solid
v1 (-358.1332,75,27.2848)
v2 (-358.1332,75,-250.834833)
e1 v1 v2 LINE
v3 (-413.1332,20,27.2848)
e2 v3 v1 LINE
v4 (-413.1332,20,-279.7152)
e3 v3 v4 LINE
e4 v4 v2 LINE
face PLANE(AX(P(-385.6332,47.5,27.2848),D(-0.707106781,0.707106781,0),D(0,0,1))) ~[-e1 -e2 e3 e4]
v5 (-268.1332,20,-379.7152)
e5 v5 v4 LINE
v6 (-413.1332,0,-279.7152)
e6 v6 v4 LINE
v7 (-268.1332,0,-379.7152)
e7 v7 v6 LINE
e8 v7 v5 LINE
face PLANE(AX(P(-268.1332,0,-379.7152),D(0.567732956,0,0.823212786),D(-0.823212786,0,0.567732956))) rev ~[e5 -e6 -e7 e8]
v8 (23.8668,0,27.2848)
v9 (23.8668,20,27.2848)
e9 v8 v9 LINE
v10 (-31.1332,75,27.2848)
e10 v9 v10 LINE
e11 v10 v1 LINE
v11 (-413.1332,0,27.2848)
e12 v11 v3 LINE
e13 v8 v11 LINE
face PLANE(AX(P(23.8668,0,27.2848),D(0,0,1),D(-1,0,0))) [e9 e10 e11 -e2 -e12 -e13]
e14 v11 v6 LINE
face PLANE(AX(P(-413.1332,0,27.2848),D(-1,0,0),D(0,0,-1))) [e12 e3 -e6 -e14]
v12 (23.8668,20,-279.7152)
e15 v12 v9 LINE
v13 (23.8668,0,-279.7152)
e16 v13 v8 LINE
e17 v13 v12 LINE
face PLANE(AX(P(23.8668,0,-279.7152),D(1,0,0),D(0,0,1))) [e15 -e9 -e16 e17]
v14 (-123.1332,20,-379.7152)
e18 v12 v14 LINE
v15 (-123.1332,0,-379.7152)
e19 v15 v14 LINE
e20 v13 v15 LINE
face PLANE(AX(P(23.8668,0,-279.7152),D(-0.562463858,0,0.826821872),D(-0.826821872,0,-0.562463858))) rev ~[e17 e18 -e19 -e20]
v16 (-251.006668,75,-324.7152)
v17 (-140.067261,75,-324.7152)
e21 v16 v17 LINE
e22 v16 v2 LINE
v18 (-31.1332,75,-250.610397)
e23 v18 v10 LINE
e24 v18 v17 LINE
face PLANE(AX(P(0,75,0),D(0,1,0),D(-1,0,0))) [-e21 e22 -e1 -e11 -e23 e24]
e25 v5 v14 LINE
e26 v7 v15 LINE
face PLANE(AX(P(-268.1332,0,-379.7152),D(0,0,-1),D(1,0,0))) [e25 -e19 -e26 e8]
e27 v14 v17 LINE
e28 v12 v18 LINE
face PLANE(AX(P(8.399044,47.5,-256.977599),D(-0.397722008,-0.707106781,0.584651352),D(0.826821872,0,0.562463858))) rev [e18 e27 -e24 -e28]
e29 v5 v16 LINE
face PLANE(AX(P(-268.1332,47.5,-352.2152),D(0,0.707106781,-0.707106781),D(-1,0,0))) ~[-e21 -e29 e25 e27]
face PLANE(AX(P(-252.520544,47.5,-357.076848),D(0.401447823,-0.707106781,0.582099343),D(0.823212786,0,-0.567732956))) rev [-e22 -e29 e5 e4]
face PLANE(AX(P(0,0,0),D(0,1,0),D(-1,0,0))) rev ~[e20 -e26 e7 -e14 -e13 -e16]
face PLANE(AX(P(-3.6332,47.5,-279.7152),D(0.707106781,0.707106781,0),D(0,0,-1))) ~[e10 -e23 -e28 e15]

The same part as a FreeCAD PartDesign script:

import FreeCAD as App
import Part
import Sketcher

V = App.Vector
Q = App.Units.Quantity


def edges_at(feature, points):
    """Names of the edges that pass closest to the given points."""
    edges = feature.Shape.Edges
    near = lambda p: min(range(len(edges)), key=lambda i: edges[i].distToShape(Part.Vertex(*p))[0])
    return sorted({f"Edge{near(p) + 1}" for p in points})


def add_polygon(sketch, points):
    """Adds a closed chain of lines whose ends are joined by coincident constraints."""
    first, n = sketch.GeometryCount, len(points)
    for a, b in zip(points, points[1:] + points[:1]):
        sketch.addGeometry(Part.LineSegment(App.Vector(*a, 0), App.Vector(*b, 0)), False)
    for i in range(n):
        sketch.addConstraint(Sketcher.Constraint("Coincident", first + i, 2, first + (i + 1) % n, 1))

doc = App.newDocument("Part")
params = doc.addObject("Spreadsheet::Sheet", "Params")
for row, (alias, value) in enumerate([
    ("sketch1_width", "437 mm"),
    ("sketch1_width2", "145 mm"),
    ("pad1_length", "75 mm"),
    ("chamfer_size", "55 mm"),
], start=1):
    params.set(f"A{row}", alias)
    params.set(f"B{row}", "=" + value)
    params.setAlias(f"B{row}", alias)

body = doc.addObject("PartDesign::Body", "Body")

sketch1 = doc.addObject("Sketcher::SketchObject", "Sketch")
body.addObject(sketch1)
sketch1.AttachmentSupport = (doc.XZ_Plane, [""])
sketch1.MapMode = "FlatFace"
add_polygon(sketch1, [(-413, 27), (24, 27), (24, -280), (-123, -380), (-268, -380), (-413, -280)])
sketch1.addConstraint([
    Sketcher.Constraint("Horizontal", 0),
    Sketcher.Constraint("Vertical", 1),
    Sketcher.Constraint("Horizontal", 3),
    Sketcher.Constraint("Vertical", 5),
    Sketcher.Constraint("Horizontal", 1, 2, 4, 2),
    Sketcher.Constraint("DistanceX", 0, 1, 0, 2, Q("437 mm")),
    Sketcher.Constraint("DistanceX", 3, 2, 3, 1, Q("145 mm")),
    Sketcher.Constraint("DistanceY", 2, 2, 1, 2, Q("100 mm")),
    Sketcher.Constraint("DistanceY", 2, 2, 0, 2, Q("407 mm")),
    Sketcher.Constraint("DistanceX", 4, 2, 3, 2, Q("145 mm")),
    Sketcher.Constraint("DistanceX", -1, 1, 0, 2, Q("23.8668 mm")),
    Sketcher.Constraint("DistanceY", -1, 1, 0, 2, Q("27.2848 mm")),
])
sketch1.setExpression("Constraints[11]", "Params.sketch1_width")
sketch1.setExpression("Constraints[12]", "Params.sketch1_width2")
pad1 = doc.addObject("PartDesign::Pad", "Pad")
body.addObject(pad1)
pad1.Profile = sketch1
pad1.setExpression("Length", "Params.pad1_length")
pad1.Reversed = True
doc.recompute()

chamfer = doc.addObject("PartDesign::Chamfer", "Chamfer")
body.addObject(chamfer)
chamfer.Base = (pad1, edges_at(pad1, [
    (-49.633, 75, -329.715),
    (23.867, 75, -126.215),
    (-195.633, 75, -379.715),
    (-340.633, 75, -329.715),
    (-413.133, 75, -126.215),
]))
chamfer.setExpression("Size", "Params.chamfer_size")

doc.recompute()
